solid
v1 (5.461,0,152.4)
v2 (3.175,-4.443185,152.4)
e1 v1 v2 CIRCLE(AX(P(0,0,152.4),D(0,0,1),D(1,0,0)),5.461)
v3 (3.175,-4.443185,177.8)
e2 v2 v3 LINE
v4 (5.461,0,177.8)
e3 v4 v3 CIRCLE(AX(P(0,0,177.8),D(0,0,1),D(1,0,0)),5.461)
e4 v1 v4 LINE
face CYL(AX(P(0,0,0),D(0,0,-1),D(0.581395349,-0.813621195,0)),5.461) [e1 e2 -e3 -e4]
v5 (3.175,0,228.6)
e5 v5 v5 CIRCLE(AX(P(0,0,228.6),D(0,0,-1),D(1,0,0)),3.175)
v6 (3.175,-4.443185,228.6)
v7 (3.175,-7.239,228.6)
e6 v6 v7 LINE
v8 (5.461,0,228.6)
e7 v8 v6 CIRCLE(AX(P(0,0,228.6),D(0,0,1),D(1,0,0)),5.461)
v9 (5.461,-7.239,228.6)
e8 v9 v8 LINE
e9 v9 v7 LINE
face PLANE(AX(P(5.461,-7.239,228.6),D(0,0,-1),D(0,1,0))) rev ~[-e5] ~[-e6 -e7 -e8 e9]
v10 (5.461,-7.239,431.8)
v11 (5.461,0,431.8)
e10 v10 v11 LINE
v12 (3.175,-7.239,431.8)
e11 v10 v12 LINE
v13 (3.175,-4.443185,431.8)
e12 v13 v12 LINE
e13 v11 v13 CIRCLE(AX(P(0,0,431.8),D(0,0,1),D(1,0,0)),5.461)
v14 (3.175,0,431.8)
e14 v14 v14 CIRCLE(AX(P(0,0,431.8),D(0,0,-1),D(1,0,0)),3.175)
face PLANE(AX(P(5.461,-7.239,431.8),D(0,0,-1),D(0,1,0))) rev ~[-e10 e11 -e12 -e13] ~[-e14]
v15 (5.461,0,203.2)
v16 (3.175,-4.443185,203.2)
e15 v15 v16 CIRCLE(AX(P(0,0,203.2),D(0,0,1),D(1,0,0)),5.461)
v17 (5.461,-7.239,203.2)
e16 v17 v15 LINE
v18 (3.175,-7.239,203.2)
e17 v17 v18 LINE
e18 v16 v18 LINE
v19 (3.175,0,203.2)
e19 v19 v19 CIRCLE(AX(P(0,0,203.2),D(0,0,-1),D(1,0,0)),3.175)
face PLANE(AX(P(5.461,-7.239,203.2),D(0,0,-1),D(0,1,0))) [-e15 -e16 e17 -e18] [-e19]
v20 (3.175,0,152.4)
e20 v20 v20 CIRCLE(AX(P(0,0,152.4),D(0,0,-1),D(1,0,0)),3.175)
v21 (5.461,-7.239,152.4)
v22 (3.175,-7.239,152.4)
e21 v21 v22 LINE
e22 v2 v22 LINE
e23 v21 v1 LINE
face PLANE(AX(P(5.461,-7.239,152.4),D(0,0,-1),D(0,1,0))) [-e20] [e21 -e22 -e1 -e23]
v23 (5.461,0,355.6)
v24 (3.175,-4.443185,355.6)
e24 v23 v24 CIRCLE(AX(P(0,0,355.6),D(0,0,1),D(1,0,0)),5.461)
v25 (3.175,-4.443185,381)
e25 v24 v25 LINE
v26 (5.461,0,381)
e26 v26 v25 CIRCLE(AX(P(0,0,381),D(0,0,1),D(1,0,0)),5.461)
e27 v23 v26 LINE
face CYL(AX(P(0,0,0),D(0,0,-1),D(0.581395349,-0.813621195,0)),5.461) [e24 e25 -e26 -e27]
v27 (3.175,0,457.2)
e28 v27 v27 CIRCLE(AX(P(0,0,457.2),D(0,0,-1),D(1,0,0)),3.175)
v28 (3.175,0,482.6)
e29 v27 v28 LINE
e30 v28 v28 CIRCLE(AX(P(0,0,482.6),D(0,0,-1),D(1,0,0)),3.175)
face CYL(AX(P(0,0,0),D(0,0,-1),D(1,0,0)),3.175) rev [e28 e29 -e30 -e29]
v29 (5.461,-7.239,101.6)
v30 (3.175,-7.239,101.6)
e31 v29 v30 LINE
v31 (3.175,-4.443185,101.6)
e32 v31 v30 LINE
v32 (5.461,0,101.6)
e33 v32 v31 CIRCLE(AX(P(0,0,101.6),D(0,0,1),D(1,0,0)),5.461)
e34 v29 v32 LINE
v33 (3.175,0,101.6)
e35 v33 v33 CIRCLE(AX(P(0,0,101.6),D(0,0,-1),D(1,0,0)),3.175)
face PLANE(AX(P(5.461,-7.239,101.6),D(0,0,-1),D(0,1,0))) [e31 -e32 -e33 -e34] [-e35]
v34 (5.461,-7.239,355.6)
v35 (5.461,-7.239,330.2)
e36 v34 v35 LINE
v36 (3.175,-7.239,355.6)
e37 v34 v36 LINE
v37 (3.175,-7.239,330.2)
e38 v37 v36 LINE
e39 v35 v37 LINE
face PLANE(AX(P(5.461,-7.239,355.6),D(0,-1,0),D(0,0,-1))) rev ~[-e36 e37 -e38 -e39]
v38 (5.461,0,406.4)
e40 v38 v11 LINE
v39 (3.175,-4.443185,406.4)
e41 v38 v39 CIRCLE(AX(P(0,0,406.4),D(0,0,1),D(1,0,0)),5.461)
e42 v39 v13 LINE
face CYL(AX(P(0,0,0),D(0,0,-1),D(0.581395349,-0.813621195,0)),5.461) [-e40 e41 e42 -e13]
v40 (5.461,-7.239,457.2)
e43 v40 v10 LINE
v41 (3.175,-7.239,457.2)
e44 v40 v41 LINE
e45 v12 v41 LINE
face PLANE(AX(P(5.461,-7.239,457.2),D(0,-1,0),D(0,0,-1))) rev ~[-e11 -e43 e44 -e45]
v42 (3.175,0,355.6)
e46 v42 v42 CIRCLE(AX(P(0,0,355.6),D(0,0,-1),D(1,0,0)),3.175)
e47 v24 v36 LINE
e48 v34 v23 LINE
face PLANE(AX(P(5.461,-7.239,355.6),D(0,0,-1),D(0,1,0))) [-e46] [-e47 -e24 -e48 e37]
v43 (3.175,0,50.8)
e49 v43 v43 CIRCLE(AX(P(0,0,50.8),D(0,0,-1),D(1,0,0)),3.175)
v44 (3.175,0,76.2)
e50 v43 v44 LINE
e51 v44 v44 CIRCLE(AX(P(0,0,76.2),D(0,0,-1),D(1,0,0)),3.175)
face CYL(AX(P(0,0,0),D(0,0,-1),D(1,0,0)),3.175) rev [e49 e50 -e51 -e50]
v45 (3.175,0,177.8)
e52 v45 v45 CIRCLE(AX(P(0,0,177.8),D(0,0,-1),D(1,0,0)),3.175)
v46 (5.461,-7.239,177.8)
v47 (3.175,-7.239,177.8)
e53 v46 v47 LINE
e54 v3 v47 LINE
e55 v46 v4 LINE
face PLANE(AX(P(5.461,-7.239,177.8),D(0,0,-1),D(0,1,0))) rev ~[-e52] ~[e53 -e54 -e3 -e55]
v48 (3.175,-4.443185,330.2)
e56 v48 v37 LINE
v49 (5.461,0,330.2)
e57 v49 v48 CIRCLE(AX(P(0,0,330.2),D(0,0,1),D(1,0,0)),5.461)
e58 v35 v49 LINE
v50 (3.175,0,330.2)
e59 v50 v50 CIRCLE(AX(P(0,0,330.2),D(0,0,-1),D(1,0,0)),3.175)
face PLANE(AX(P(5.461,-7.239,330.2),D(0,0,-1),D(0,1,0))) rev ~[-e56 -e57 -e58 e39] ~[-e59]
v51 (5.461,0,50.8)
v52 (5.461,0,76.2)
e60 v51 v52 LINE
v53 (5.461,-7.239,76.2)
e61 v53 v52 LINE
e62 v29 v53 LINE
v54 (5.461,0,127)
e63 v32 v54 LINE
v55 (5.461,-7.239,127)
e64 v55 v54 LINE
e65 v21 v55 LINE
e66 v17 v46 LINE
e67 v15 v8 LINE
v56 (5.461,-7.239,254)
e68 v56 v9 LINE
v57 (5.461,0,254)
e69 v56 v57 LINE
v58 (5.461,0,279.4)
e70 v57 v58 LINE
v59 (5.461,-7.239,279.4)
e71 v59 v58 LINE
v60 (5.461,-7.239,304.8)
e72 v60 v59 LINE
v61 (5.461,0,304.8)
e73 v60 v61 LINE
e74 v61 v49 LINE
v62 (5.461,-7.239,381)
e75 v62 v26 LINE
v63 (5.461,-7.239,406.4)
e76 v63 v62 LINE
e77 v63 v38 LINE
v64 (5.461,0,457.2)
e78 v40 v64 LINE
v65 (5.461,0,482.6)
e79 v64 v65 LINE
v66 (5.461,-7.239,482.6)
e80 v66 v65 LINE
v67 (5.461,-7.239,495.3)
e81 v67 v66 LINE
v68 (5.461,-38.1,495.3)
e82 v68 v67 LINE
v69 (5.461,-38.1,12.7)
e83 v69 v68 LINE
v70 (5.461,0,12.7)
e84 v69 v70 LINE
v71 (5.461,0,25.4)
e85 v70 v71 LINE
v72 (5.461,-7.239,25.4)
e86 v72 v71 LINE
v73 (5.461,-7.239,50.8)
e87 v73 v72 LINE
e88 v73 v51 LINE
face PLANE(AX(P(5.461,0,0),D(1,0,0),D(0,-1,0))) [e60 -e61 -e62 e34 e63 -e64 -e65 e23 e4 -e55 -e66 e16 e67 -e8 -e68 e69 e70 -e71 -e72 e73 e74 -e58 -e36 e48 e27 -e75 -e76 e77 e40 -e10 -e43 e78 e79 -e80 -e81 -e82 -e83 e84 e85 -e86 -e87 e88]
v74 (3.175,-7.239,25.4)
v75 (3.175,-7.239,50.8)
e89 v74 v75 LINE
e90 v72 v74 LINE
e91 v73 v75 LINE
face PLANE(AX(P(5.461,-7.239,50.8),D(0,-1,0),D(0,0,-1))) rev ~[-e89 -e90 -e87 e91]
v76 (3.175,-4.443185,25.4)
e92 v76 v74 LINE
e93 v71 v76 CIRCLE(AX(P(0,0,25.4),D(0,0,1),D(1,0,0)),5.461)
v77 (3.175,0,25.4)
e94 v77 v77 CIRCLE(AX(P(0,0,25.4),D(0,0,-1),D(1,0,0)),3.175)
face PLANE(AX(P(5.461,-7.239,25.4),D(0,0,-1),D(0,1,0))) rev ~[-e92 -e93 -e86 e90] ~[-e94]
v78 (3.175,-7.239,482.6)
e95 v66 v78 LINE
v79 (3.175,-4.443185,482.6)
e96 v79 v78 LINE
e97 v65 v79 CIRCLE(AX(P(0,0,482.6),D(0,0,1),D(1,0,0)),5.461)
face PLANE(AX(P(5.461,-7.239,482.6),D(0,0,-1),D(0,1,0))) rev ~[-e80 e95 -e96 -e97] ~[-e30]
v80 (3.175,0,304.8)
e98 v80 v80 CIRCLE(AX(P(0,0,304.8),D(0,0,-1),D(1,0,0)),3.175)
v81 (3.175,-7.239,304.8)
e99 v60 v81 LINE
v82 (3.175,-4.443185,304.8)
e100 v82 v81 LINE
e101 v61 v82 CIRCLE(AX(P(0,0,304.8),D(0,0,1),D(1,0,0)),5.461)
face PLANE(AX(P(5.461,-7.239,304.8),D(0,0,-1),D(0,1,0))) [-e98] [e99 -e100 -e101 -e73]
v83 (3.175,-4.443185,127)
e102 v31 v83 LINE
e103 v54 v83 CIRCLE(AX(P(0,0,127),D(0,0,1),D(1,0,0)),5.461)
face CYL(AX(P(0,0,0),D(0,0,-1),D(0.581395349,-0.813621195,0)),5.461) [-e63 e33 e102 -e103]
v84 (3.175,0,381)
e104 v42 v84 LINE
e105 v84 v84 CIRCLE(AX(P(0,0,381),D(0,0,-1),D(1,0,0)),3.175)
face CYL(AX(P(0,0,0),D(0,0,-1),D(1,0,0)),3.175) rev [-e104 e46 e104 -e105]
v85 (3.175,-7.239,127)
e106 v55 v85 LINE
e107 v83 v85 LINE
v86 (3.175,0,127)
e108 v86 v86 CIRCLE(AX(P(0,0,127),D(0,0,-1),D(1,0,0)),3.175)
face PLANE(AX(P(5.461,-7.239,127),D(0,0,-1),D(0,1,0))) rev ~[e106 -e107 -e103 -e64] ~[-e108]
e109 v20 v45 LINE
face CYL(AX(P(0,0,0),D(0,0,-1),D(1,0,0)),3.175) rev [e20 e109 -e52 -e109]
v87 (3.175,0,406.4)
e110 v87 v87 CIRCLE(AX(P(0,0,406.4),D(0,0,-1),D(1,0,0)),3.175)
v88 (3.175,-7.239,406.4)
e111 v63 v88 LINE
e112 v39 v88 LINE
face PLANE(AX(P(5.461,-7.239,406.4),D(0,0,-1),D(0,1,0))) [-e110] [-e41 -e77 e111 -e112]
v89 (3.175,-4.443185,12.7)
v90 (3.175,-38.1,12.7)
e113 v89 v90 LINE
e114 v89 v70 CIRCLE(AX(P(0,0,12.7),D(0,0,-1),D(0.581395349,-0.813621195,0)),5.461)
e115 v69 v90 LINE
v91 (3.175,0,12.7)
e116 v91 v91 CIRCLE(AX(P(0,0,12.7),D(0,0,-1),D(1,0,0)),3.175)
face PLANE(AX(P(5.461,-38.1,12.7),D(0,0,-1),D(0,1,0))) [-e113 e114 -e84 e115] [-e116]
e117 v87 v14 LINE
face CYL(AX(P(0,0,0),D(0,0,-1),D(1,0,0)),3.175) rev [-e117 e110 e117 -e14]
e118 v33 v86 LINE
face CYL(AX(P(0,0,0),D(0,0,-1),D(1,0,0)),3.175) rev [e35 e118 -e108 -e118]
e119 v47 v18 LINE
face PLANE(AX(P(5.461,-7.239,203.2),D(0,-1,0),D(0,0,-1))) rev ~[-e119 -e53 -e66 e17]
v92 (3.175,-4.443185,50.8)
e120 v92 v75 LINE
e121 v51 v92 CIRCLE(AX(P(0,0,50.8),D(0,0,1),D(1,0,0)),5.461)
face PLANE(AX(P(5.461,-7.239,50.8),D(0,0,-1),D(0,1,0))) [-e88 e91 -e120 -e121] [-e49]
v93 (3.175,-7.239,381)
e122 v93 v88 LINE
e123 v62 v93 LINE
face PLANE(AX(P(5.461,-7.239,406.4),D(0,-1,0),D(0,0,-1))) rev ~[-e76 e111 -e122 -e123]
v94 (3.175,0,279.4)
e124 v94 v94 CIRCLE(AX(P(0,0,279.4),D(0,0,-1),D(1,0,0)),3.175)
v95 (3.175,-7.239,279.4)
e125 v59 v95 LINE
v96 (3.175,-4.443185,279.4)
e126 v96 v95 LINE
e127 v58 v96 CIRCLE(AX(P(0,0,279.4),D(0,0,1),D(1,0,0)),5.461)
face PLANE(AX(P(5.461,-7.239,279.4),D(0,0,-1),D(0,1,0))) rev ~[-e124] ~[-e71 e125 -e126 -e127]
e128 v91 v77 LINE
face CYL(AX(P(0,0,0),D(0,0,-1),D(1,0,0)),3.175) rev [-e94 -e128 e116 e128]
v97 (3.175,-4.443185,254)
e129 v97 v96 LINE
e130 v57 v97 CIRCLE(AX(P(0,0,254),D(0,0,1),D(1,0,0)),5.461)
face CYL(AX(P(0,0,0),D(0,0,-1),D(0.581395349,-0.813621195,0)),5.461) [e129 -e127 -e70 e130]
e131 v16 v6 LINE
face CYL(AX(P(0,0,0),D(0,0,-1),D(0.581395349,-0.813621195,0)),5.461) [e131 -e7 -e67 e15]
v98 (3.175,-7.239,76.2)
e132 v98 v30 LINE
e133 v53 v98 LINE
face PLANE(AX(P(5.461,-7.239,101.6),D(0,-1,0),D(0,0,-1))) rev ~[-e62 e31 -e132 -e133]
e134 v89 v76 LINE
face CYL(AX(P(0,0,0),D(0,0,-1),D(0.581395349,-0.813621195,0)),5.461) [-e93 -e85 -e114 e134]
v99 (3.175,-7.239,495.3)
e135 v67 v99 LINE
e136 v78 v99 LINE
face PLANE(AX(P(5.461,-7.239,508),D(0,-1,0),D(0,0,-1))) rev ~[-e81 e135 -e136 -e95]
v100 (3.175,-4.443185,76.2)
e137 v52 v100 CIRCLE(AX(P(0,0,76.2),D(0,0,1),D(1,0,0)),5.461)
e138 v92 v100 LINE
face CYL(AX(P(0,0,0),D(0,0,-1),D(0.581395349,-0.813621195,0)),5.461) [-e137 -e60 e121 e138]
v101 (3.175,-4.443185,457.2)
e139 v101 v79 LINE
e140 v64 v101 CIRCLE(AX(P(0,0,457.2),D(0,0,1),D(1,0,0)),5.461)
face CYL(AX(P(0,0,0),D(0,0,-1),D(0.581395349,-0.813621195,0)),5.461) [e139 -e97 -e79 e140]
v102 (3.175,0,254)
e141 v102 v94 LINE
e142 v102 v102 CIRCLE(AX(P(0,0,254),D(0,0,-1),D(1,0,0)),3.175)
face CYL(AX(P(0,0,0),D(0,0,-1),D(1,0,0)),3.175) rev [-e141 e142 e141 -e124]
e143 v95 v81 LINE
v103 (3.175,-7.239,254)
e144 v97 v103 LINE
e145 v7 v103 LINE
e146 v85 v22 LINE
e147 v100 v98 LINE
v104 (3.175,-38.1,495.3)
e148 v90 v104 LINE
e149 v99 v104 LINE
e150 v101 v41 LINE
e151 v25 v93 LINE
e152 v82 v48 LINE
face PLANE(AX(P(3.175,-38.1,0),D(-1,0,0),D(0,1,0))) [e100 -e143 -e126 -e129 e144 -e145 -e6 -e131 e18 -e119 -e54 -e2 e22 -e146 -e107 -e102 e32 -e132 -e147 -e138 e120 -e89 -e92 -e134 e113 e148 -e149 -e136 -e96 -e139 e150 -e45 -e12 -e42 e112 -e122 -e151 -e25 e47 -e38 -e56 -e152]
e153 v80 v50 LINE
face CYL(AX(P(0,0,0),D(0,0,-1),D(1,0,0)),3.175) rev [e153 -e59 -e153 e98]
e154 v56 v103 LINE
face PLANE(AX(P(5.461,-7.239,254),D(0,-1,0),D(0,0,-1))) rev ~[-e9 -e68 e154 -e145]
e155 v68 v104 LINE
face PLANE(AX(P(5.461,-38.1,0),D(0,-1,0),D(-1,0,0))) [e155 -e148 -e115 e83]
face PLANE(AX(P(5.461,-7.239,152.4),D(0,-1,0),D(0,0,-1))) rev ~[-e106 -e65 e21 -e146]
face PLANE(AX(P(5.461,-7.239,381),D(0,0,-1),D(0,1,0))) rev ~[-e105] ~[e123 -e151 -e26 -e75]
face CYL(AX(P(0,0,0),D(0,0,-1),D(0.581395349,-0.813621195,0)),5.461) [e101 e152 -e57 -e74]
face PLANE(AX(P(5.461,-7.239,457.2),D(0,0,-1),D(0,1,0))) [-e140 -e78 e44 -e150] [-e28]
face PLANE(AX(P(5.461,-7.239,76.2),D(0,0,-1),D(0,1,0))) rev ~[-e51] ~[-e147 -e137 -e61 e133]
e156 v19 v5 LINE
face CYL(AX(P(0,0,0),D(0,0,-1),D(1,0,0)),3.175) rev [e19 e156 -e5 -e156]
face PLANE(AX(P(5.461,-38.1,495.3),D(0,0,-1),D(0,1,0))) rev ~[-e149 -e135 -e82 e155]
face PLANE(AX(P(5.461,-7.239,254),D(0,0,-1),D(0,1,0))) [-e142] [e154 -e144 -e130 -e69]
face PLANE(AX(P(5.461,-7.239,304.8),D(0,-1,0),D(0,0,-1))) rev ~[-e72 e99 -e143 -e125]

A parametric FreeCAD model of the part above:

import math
import FreeCAD as App
import Part
import Sketcher
Q = App.Units.Quantity


def add_polygon(sketch, points):
    """Adds a closed chain of lines whose ends are joined by coincident constraints."""
    first, n = sketch.GeometryCount, len(points)
    for a, b in zip(points, points[1:] + points[:1]):
        sketch.addGeometry(Part.LineSegment(App.Vector(*a, 0), App.Vector(*b, 0)), False)
    for i in range(n):
        sketch.addConstraint(Sketcher.Constraint("Coincident", first + i, 2, first + (i + 1) % n, 1))

doc = App.newDocument("Part")
params = doc.addObject("Spreadsheet::Sheet", "Params")
for row, (alias, value) in enumerate([
    ("sketch1_diameter", "0.25 in"),
    ("sketch1_height", "1.5 in"),
    ("sketch1_radius", "0.215 in"),
    ("sketch1_width", "0.09 in"),
    ("pad1_length", "20 in"),
    ("sketch2_height", "1 in"),
    ("sketch2_width", "0.5 in"),
    ("linearpattern_pitch", "2 in"),
    ("sketch3_height", "0.5 in"),
    ("sketch3_width", "1.215 in"),
], start=1):
    params.set(f"A{row}", alias)
    params.set(f"B{row}", "=" + value)
    params.setAlias(f"B{row}", alias)

body = doc.addObject("PartDesign::Body", "Body")

# Sketch on XY plane
sketch1 = body.newObject("Sketcher::SketchObject", "Sketch")
sketch1.AttachmentSupport = (doc.getObject("XY_Plane"), [""])
sketch1.MapMode = "FlatFace"
sketch1.addGeometry([
    Part.LineSegment(App.Vector(5.5, -38.1, 0), App.Vector(5.5, 0, 0)),  # 0
    Part.ArcOfCircle(Part.Circle(App.Vector(0, 0, 0), App.Vector(0, 0, 1), 5.5), math.radians(0), math.radians(306)),  # 1
    Part.LineSegment(App.Vector(3.2, -4.4, 0), App.Vector(3.2, -38.1, 0)),  # 2
    Part.LineSegment(App.Vector(3.2, -38.1, 0), App.Vector(5.5, -38.1, 0)),  # 3
    Part.Circle(App.Vector(0, 0, 0), App.Vector(0, 0, 1), 3.2),  # 4
], False)
sketch1.addConstraint([
    Sketcher.Constraint("Tangent", 0, 2, 1, 1),
    Sketcher.Constraint("Coincident", 1, 2, 2, 1),
    Sketcher.Constraint("Coincident", 2, 2, 3, 1),
    Sketcher.Constraint("Coincident", 3, 2, 0, 1),
    Sketcher.Constraint("Vertical", 0),
    Sketcher.Constraint("Vertical", 2),
    Sketcher.Constraint("Horizontal", 3),
    Sketcher.Constraint("Coincident", 1, 3, -1, 1),
    Sketcher.Constraint("Coincident", 4, 3, -1, 1),
    Sketcher.Constraint("Diameter", 4, Q("0.25 in")),
    Sketcher.Constraint("DistanceY", 0, 1, 0, 2, Q("1.5 in")),
    Sketcher.Constraint("Radius", 1, Q("0.215 in")),
    Sketcher.Constraint("DistanceX", 3, 1, 3, 2, Q("0.09 in")),
])
sketch1.setExpression("Constraints[9]", "Params.sketch1_diameter")
sketch1.setExpression("Constraints[10]", "Params.sketch1_height")
sketch1.setExpression("Constraints[11]", "Params.sketch1_radius")
sketch1.setExpression("Constraints[12]", "Params.sketch1_width")
pad1 = body.newObject("PartDesign::Pad", "Pad")
pad1.Profile = sketch1
pad1.setExpression("Length", "Params.pad1_length")

# Sketch on YZ plane
sketch2 = body.newObject("Sketcher::SketchObject", "Sketch001")
sketch2.AttachmentSupport = (doc.getObject("YZ_Plane"), [""])
sketch2.MapMode = "FlatFace"
sketch2.AttachmentOffset = App.Placement(App.Vector(0, 0, 0.215 * 25.4), App.Rotation())
add_polygon(sketch2, [(5, 508), (-7, 508), (-7, 483), (5, 483)])  # lines 0-3
sketch2.addConstraint([
    Sketcher.Constraint("Horizontal", 0),
    Sketcher.Constraint("Vertical", 1),
    Sketcher.Constraint("Horizontal", 2),
    Sketcher.Constraint("Vertical", 3),
    Sketcher.Constraint("DistanceY", 1, 2, 1, 1, Q("1 in")),
    Sketcher.Constraint("DistanceX", 0, 2, 0, 1, Q("0.5 in")),
    Sketcher.Constraint("DistanceY", -1, 1, 0, 2, Q("20 in")),
    Sketcher.Constraint("DistanceX", 0, 2, -1, 1, Q("0.285 in")),
])
sketch2.setExpression("Constraints[8]", "Params.sketch2_height")
sketch2.setExpression("Constraints[9]", "Params.sketch2_width")
pocket1 = body.newObject("PartDesign::Pocket", "Pocket")
pocket1.Profile = sketch2
pocket1.Type = "ThroughAll"
doc.recompute()

linearpattern = body.newObject("PartDesign::LinearPattern", "LinearPattern")
linearpattern.Originals = [pocket1]
linearpattern.Direction = (doc.getObject("Z_Axis"), [""])
linearpattern.Mode = "offset"
linearpattern.setExpression("Offset", "Params.linearpattern_pitch")
linearpattern.Occurrences = 10
linearpattern.Reversed = True
body.Tip = linearpattern

# Sketch on YZ plane
sketch3 = body.newObject("Sketcher::SketchObject", "Sketch002")
sketch3.AttachmentSupport = (doc.getObject("YZ_Plane"), [""])
sketch3.MapMode = "FlatFace"
sketch3.AttachmentOffset = App.Placement(App.Vector(0, 0, 0.215 * 25.4), App.Rotation())
add_polygon(sketch3, [(-7, 508), (-38, 508), (-38, 495), (-7, 495)])  # lines 0-3
add_polygon(sketch3, [(5, 13), (-38, 13), (-38, 0), (5, 0)])  # lines 4-7
sketch3.addConstraint([
    Sketcher.Constraint("Horizontal", 0),
    Sketcher.Constraint("Vertical", 1),
    Sketcher.Constraint("Horizontal", 2),
    Sketcher.Constraint("Vertical", 3),
    Sketcher.Constraint("Horizontal", 4),
    Sketcher.Constraint("Vertical", 5),
    Sketcher.Constraint("Horizontal", 6),
    Sketcher.Constraint("Vertical", 7),
    Sketcher.Constraint("PointOnObject", 5, 2, -1),
    Sketcher.Constraint("Vertical", 1, 2, 4, 2),
    Sketcher.Constraint("Equal", 3, 5),
    Sketcher.Constraint("DistanceY", 1, 2, 1, 1, Q("0.5 in")),
    Sketcher.Constraint("DistanceY", -1, 1, 0, 2, Q("20 in")),
    Sketcher.Constraint("DistanceX", 0, 2, -1, 1, Q("1.5 in")),
    Sketcher.Constraint("DistanceX", 2, 2, 6, 2, Q("0.5 in")),
    Sketcher.Constraint("DistanceX", 0, 2, 0, 1, Q("1.215 in")),
])
sketch3.setExpression("Constraints[19]", "Params.sketch3_height")
sketch3.setExpression("Constraints[23]", "Params.sketch3_width")
pocket2 = body.newObject("PartDesign::Pocket", "Pocket001")
pocket2.Profile = sketch3
pocket2.Type = "ThroughAll"

doc.recompute()
